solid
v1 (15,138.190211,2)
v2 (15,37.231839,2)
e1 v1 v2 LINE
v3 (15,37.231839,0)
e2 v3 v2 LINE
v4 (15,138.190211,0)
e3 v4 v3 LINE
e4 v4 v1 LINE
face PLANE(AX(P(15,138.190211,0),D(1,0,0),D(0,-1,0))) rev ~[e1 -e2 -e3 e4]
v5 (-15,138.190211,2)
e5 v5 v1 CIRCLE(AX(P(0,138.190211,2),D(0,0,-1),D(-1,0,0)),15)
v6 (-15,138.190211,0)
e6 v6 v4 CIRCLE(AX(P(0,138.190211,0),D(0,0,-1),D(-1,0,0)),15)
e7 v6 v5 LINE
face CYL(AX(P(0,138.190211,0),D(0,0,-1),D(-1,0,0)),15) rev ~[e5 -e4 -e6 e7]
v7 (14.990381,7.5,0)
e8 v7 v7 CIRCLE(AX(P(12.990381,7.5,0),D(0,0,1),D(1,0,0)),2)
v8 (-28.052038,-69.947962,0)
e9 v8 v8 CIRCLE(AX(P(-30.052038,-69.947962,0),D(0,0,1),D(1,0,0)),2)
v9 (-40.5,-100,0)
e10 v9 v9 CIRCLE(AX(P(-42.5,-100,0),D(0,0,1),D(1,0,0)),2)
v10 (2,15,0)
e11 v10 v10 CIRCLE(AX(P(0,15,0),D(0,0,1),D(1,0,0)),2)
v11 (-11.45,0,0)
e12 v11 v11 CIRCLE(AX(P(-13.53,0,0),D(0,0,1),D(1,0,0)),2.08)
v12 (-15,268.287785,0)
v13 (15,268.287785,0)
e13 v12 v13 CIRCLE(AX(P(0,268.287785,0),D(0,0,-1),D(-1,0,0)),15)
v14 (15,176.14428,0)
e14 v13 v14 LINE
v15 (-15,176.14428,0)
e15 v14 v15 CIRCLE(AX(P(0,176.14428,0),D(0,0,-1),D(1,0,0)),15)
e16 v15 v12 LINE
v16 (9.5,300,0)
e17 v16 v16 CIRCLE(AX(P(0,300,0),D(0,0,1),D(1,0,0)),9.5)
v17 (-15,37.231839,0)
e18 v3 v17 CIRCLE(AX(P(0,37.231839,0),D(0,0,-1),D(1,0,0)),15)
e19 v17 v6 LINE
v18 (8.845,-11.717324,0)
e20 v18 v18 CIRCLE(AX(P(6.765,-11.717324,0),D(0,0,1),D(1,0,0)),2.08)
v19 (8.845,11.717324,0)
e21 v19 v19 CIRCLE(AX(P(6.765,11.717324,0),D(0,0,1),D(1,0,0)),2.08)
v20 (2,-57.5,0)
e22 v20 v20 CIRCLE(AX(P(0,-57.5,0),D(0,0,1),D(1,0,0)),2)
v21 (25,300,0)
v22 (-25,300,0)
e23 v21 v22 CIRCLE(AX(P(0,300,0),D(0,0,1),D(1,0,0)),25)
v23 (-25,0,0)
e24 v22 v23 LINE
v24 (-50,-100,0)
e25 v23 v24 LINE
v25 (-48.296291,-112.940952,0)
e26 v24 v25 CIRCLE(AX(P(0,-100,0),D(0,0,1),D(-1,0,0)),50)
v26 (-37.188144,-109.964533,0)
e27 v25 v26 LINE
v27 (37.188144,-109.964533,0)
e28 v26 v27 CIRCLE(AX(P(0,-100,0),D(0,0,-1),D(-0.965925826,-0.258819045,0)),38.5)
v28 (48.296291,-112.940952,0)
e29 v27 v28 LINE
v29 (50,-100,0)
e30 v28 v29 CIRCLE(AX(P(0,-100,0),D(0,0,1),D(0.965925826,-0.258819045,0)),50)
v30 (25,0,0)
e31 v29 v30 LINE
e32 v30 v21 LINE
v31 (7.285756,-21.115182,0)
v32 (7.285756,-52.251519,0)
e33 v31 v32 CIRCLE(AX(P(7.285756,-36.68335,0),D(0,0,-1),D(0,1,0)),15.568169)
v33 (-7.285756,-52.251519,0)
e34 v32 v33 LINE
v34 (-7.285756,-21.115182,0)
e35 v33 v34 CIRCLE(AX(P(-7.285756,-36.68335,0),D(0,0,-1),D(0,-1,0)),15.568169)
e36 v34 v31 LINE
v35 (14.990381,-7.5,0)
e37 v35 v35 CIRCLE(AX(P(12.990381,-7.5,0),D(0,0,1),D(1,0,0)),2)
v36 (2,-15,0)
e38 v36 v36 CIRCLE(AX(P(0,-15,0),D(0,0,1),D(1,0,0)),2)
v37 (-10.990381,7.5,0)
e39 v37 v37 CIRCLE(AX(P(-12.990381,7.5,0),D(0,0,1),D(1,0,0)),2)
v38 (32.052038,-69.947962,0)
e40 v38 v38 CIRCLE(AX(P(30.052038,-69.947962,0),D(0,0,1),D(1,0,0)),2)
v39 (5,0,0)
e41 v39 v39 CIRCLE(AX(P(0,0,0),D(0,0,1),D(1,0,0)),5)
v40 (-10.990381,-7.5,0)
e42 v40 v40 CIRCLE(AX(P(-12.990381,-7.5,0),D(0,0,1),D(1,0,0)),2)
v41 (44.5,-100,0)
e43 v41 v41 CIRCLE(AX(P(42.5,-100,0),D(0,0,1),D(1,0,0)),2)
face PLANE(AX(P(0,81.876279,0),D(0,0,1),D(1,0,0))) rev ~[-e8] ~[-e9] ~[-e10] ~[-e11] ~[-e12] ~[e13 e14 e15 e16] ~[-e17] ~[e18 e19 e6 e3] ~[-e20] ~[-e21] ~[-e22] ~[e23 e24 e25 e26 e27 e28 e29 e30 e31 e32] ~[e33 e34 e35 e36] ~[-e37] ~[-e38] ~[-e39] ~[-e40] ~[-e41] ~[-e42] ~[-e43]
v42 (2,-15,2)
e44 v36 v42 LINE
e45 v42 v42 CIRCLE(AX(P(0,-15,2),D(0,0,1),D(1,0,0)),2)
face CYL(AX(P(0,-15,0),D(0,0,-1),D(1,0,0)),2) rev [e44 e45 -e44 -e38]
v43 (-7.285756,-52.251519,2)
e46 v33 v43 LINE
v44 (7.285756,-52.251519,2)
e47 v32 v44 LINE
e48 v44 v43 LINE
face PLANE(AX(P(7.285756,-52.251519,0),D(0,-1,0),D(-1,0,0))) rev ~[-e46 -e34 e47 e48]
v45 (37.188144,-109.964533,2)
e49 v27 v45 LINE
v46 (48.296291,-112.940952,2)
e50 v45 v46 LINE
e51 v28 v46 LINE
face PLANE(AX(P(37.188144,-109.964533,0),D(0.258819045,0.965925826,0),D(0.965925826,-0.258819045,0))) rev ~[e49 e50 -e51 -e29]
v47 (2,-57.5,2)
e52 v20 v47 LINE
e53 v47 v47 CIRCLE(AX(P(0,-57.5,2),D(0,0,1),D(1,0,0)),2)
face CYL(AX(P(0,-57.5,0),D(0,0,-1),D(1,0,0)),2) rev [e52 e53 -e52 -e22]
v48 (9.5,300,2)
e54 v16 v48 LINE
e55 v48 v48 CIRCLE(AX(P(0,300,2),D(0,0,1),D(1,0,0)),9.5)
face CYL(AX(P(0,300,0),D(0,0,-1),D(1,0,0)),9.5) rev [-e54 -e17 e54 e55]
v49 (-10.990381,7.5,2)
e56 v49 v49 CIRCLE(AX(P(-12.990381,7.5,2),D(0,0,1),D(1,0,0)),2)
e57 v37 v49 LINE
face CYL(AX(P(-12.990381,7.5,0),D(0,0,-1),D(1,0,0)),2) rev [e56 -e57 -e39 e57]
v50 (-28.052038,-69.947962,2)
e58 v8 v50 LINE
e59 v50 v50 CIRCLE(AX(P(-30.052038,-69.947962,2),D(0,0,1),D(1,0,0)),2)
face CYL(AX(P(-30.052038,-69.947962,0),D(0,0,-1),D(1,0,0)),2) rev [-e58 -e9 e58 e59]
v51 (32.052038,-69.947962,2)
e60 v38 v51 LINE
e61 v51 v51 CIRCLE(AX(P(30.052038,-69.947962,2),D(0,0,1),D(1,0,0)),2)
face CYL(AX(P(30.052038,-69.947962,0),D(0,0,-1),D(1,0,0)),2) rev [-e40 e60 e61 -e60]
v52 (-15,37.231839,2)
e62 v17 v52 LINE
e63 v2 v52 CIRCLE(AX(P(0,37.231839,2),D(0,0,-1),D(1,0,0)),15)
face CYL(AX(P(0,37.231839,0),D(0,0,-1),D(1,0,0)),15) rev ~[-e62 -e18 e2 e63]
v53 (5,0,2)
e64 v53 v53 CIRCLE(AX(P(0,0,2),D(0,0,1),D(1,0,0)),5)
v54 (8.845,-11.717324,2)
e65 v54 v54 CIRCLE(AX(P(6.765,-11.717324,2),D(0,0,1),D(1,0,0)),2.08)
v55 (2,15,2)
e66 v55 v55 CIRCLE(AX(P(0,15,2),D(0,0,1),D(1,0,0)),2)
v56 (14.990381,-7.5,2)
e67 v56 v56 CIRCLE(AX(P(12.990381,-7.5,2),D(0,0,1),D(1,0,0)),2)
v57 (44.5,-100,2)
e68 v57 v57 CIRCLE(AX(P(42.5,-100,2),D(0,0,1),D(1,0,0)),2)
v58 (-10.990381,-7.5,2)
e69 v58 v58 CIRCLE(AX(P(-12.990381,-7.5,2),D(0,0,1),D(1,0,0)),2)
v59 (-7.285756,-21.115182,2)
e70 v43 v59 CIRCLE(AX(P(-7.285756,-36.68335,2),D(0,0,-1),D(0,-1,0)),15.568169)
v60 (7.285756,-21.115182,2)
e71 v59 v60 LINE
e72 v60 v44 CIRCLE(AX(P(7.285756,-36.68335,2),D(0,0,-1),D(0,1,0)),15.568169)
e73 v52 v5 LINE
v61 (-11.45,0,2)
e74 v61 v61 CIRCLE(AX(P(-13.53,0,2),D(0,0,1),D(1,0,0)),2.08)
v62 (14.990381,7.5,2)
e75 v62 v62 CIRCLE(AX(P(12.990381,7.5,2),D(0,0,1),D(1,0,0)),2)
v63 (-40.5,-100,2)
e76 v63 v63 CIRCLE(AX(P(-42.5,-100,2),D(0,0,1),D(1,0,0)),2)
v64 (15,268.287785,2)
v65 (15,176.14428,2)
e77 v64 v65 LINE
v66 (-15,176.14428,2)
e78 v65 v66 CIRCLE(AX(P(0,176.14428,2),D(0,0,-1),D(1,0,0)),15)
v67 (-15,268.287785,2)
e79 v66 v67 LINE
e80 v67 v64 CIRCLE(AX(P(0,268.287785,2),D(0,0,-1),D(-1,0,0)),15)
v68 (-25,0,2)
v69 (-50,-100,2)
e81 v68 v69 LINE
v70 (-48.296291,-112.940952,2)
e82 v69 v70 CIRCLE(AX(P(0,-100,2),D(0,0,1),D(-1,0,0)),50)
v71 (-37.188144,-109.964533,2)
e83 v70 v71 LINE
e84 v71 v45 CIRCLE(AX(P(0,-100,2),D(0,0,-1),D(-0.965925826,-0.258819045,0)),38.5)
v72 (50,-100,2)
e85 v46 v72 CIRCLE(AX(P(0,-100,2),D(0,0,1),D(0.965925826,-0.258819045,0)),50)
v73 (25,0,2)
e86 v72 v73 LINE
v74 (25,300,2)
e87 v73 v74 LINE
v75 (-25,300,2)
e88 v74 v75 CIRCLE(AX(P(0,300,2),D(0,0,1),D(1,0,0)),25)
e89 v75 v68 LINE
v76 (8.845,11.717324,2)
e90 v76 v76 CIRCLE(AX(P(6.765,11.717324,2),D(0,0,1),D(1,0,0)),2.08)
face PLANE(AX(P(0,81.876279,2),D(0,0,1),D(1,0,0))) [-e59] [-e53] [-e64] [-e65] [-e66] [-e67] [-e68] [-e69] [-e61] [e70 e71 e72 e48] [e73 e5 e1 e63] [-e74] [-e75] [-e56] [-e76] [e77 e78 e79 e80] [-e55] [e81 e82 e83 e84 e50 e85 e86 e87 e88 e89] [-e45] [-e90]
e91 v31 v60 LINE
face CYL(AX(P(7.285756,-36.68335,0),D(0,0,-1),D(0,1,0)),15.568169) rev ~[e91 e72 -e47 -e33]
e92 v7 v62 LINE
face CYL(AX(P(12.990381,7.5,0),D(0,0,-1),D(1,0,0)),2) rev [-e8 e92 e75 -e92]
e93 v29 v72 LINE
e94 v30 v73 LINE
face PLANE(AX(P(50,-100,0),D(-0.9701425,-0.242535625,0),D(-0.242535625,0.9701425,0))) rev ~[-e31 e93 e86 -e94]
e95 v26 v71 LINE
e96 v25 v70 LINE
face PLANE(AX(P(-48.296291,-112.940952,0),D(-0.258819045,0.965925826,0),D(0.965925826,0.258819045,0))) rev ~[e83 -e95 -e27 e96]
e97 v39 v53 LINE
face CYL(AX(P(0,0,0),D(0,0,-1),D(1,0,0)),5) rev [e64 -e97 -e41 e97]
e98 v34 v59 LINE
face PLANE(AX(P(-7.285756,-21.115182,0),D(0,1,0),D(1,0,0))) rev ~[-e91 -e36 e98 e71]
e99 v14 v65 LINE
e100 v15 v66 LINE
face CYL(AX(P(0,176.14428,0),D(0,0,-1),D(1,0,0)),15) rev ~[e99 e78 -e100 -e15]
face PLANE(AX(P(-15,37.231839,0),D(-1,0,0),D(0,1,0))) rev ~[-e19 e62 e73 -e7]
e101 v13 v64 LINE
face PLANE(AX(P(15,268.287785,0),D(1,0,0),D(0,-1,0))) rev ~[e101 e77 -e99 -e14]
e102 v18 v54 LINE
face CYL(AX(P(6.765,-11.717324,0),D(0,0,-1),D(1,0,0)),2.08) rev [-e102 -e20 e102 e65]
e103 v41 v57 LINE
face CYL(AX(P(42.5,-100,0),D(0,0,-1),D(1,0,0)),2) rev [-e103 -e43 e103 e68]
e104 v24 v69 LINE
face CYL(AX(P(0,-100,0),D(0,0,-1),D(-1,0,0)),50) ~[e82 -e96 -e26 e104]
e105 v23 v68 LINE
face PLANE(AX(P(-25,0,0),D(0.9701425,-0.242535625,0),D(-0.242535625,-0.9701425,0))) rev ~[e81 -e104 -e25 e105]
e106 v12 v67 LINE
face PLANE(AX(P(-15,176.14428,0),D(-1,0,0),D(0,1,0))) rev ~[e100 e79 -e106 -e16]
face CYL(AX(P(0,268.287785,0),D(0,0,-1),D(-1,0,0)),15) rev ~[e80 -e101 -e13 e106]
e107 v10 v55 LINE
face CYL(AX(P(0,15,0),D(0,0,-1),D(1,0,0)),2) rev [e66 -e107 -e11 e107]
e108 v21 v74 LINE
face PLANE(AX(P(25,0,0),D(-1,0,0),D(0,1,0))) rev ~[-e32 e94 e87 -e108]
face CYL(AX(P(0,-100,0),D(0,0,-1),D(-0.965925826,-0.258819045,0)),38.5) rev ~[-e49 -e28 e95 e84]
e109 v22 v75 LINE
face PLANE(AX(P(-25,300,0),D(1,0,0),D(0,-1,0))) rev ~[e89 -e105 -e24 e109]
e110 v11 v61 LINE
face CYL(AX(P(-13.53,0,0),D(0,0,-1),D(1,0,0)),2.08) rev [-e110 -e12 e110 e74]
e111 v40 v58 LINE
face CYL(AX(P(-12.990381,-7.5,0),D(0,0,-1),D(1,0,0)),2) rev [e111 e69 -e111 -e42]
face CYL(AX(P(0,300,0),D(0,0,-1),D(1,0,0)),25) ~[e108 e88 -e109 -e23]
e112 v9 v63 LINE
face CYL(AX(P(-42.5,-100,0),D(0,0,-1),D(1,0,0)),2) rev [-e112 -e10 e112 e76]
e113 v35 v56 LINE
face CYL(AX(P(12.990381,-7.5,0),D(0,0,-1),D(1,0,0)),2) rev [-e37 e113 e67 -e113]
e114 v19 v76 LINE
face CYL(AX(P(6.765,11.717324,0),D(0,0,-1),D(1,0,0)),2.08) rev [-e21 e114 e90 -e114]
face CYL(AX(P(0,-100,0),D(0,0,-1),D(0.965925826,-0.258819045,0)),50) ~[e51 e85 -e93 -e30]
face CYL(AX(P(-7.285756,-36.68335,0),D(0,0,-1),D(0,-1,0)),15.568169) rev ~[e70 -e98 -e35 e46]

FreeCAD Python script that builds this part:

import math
import FreeCAD as App
import Part
import Sketcher
from FreeCAD import Vector
Q = App.Units.Quantity

doc = App.newDocument("Part")
body = doc.addObject("PartDesign::Body", "Body")

# Sketch on XY plane
sketch1 = doc.addObject("Sketcher::SketchObject", "Sketch")
body.addObject(sketch1)
sketch1.AttachmentSupport = (doc.XY_Plane, [""])
sketch1.MapMode = "FlatFace"
sketch1.addGeometry(Part.LineSegment(Vector(37.2, -110, 0), Vector(48.3, -112.9, 0)), False)
sketch1.addGeometry(Part.ArcOfCircle(Part.Circle(Vector(0, -100, 0), Vector(0, 0, 1), 50), math.radians(-15), math.radians(0)), False)
sketch1.addGeometry(Part.LineSegment(Vector(50, -100, 0), Vector(25, 0, 0)), False)
sketch1.addGeometry(Part.LineSegment(Vector(25, 0, 0), Vector(25, 300, 0)), False)
sketch1.addGeometry(Part.ArcOfCircle(Part.Circle(Vector(0, 300, 0), Vector(0, 0, 1), 25), math.radians(0), math.radians(180)), False)
sketch1.addGeometry(Part.LineSegment(Vector(-25, 300, 0), Vector(-25, 0, 0)), False)
sketch1.addGeometry(Part.LineSegment(Vector(-25, 0, 0), Vector(-50, -100, 0)), False)
sketch1.addGeometry(Part.ArcOfCircle(Part.Circle(Vector(0, -100, 0), Vector(0, 0, 1), 50), math.radians(180), math.radians(195)), False)
sketch1.addGeometry(Part.LineSegment(Vector(-48.3, -112.9, 0), Vector(-37.2, -110, 0)), False)
sketch1.addGeometry(Part.ArcOfCircle(Part.Circle(Vector(0, -100, 0), Vector(0, 0, 1), 38.5), math.radians(-15), math.radians(195)), False)
sketch1.addGeometry(Part.Circle(Vector(-42.5, -100, 0), Vector(0, 0, 1), 2), False)
sketch1.addGeometry(Part.Circle(Vector(-30.1, -69.9, 0), Vector(0, 0, 1), 2), False)
sketch1.addGeometry(Part.Circle(Vector(-13, -7.5, 0), Vector(0, 0, 1), 2), False)
sketch1.addGeometry(Part.Circle(Vector(-13.5, 0, 0), Vector(0, 0, 1), 2.1), False)
sketch1.addGeometry(Part.Circle(Vector(-13, 7.5, 0), Vector(0, 0, 1), 2), False)
sketch1.addGeometry(Part.Circle(Vector(0, -57.5, 0), Vector(0, 0, 1), 2), False)
sketch1.addGeometry(Part.ArcOfCircle(Part.Circle(Vector(-7.3, -36.7, 0), Vector(0, 0, 1), 15.6), math.radians(90), math.radians(270)), False)
sketch1.addGeometry(Part.LineSegment(Vector(-7.3, -21.1, 0), Vector(7.3, -21.1, 0)), False)
sketch1.addGeometry(Part.ArcOfCircle(Part.Circle(Vector(7.3, -36.7, 0), Vector(0, 0, 1), 15.6), math.radians(-90), math.radians(90)), False)
sketch1.addGeometry(Part.LineSegment(Vector(7.3, -52.3, 0), Vector(-7.3, -52.3, 0)), False)
sketch1.addGeometry(Part.Circle(Vector(0, -15, 0), Vector(0, 0, 1), 2), False)
sketch1.addGeometry(Part.Circle(Vector(0, 0, 0), Vector(0, 0, 1), 5), False)
sketch1.addGeometry(Part.Circle(Vector(6.8, -11.7, 0), Vector(0, 0, 1), 2.1), False)
sketch1.addGeometry(Part.Circle(Vector(13, -7.5, 0), Vector(0, 0, 1), 2), False)
sketch1.addGeometry(Part.Circle(Vector(30.1, -69.9, 0), Vector(0, 0, 1), 2), False)
sketch1.addGeometry(Part.Circle(Vector(42.5, -100, 0), Vector(0, 0, 1), 2), False)
sketch1.addGeometry(Part.Circle(Vector(0, 15, 0), Vector(0, 0, 1), 2), False)
sketch1.addGeometry(Part.Circle(Vector(6.8, 11.7, 0), Vector(0, 0, 1), 2.1), False)
sketch1.addGeometry(Part.Circle(Vector(13, 7.5, 0), Vector(0, 0, 1), 2), False)
sketch1.addGeometry(Part.ArcOfCircle(Part.Circle(Vector(0, 37.2, 0), Vector(0, 0, 1), 15), math.radians(180), math.radians(360)), False)
sketch1.addGeometry(Part.LineSegment(Vector(-15, 37.2, 0), Vector(-15, 138.2, 0)), False)
sketch1.addGeometry(Part.ArcOfCircle(Part.Circle(Vector(0, 138.2, 0), Vector(0, 0, 1), 15), math.radians(0), math.radians(180)), False)
sketch1.addGeometry(Part.LineSegment(Vector(15, 138.2, 0), Vector(15, 37.2, 0)), False)
sketch1.addGeometry(Part.ArcOfCircle(Part.Circle(Vector(0, 176.1, 0), Vector(0, 0, 1), 15), math.radians(180), math.radians(360)), False)
sketch1.addGeometry(Part.LineSegment(Vector(-15, 176.1, 0), Vector(-15, 268.3, 0)), False)
sketch1.addGeometry(Part.ArcOfCircle(Part.Circle(Vector(0, 268.3, 0), Vector(0, 0, 1), 15), math.radians(0), math.radians(180)), False)
sketch1.addGeometry(Part.LineSegment(Vector(15, 268.3, 0), Vector(15, 176.1, 0)), False)
sketch1.addGeometry(Part.Circle(Vector(0, 300, 0), Vector(0, 0, 1), 9.5), False)
sketch1.addConstraint(Sketcher.Constraint("Coincident", 0, 2, 1, 1))
sketch1.addConstraint(Sketcher.Constraint("Coincident", 1, 2, 2, 1))
sketch1.addConstraint(Sketcher.Constraint("Coincident", 2, 2, 3, 1))
sketch1.addConstraint(Sketcher.Constraint("Tangent", 3, 2, 4, 1))
sketch1.addConstraint(Sketcher.Constraint("Tangent", 4, 2, 5, 1))
sketch1.addConstraint(Sketcher.Constraint("Coincident", 5, 2, 6, 1))
sketch1.addConstraint(Sketcher.Constraint("Coincident", 6, 2, 7, 1))
sketch1.addConstraint(Sketcher.Constraint("Coincident", 7, 2, 8, 1))
sketch1.addConstraint(Sketcher.Constraint("Coincident", 8, 2, 9, 2))
sketch1.addConstraint(Sketcher.Constraint("Coincident", 9, 1, 0, 1))
sketch1.addConstraint(Sketcher.Constraint("Tangent", 16, 1, 17, 1))
sketch1.addConstraint(Sketcher.Constraint("Tangent", 17, 2, 18, 2))
sketch1.addConstraint(Sketcher.Constraint("Tangent", 18, 1, 19, 1))
sketch1.addConstraint(Sketcher.Constraint("Tangent", 19, 2, 16, 2))
sketch1.addConstraint(Sketcher.Constraint("Tangent", 29, 1, 30, 1))
sketch1.addConstraint(Sketcher.Constraint("Tangent", 30, 2, 31, 2))
sketch1.addConstraint(Sketcher.Constraint("Tangent", 31, 1, 32, 1))
sketch1.addConstraint(Sketcher.Constraint("Tangent", 32, 2, 29, 2))
sketch1.addConstraint(Sketcher.Constraint("Tangent", 33, 1, 34, 1))
sketch1.addConstraint(Sketcher.Constraint("Tangent", 34, 2, 35, 2))
sketch1.addConstraint(Sketcher.Constraint("Tangent", 35, 1, 36, 1))
sketch1.addConstraint(Sketcher.Constraint("Tangent", 36, 2, 33, 2))
sketch1.addConstraint(Sketcher.Constraint("Vertical", 3))
sketch1.addConstraint(Sketcher.Constraint("Vertical", 5))
sketch1.addConstraint(Sketcher.Constraint("Horizontal", 17))
sketch1.addConstraint(Sketcher.Constraint("Horizontal", 19))
sketch1.addConstraint(Sketcher.Constraint("Vertical", 30))
sketch1.addConstraint(Sketcher.Constraint("Vertical", 32))
sketch1.addConstraint(Sketcher.Constraint("Vertical", 34))
sketch1.addConstraint(Sketcher.Constraint("Vertical", 36))
sketch1.addConstraint(Sketcher.Constraint("Coincident", 21, 3, -1, 1))
sketch1.addConstraint(Sketcher.Constraint("Coincident", 7, 3, 1, 3))
sketch1.addConstraint(Sketcher.Constraint("Coincident", 9, 3, 1, 3))
sketch1.addConstraint(Sketcher.Constraint("Coincident", 37, 3, 4, 3))
sketch1.addConstraint(Sketcher.Constraint("Equal", 1, 7))
sketch1.addConstraint(Sketcher.Constraint("Equal", 10, 11))
sketch1.addConstraint(Sketcher.Constraint("Equal", 11, 12))
sketch1.addConstraint(Sketcher.Constraint("Equal", 12, 14))
sketch1.addConstraint(Sketcher.Constraint("Equal", 14, 15))
sketch1.addConstraint(Sketcher.Constraint("Equal", 15, 20))
sketch1.addConstraint(Sketcher.Constraint("Equal", 13, 22))
sketch1.addConstraint(Sketcher.Constraint("Equal", 20, 23))
sketch1.addConstraint(Sketcher.Constraint("Equal", 23, 24))
sketch1.addConstraint(Sketcher.Constraint("Equal", 24, 25))
sketch1.addConstraint(Sketcher.Constraint("Equal", 25, 26))
sketch1.addConstraint(Sketcher.Constraint("Equal", 22, 27))
sketch1.addConstraint(Sketcher.Constraint("Equal", 26, 28))
sketch1.addConstraint(Sketcher.Constraint("Equal", 31, 33))
sketch1.addConstraint(Sketcher.Constraint("Symmetric", 14, 3, 23, 3, -1, 1))
sketch1.addConstraint(Sketcher.Constraint("Symmetric", 20, 3, 26, 3, -1, 1))
sketch1.addConstraint(Sketcher.Constraint("Symmetric", 12, 3, 28, 3, -1, 1))
sketch1.addConstraint(Sketcher.Constraint("Symmetric", 2, 2, 5, 2, -1, 1))
sketch1.addConstraint(Sketcher.Constraint("Symmetric", 12, 3, 23, 3, -2))
sketch1.addConstraint(Sketcher.Constraint("Symmetric", 11, 3, 24, 3, -2))
sketch1.addConstraint(Sketcher.Constraint("Symmetric", 10, 3, 25, 3, -2))
sketch1.addConstraint(Sketcher.Constraint("Symmetric", 1, 2, 6, 2, -2))
sketch1.addConstraint(Sketcher.Constraint("Symmetric", 22, 3, 27, 3, -1))
sketch1.addConstraint(Sketcher.Constraint("PointOnObject", 13, 3, -1))
sketch1.addConstraint(Sketcher.Constraint("PointOnObject", 15, 3, -2))
sketch1.addConstraint(Sketcher.Constraint("PointOnObject", 20, 3, -2))
sketch1.addConstraint(Sketcher.Constraint("PointOnObject", 29, 3, -2))
sketch1.addConstraint(Sketcher.Constraint("PointOnObject", 33, 3, -2))
sketch1.addConstraint(Sketcher.Constraint("PointOnObject", 2, 2, -1))
sketch1.addConstraint(Sketcher.Constraint("Horizontal", 9, 3, 10, 3))
sketch1.addConstraint(Sketcher.Constraint("Horizontal", 25, 3, 1, 2))
sketch1.addConstraint(Sketcher.Constraint("Horizontal", 0, 2, 7, 2))
sketch1.addConstraint(Sketcher.Constraint("Horizontal", 8, 2, 9, 1))
sketch1.addConstraint(Sketcher.Constraint("Diameter", 10, 4.0))
sketch1.addConstraint(Sketcher.Constraint("Diameter", 21, 10.0))
sketch1.addConstraint(Sketcher.Constraint("Diameter", 37, 19.0))
sketch1.addConstraint(Sketcher.Constraint("Radius", 1, 50.0))
sketch1.addConstraint(Sketcher.Constraint("Radius", 4, 25.0))
sketch1.addConstraint(Sketcher.Constraint("Radius", 29, 15.0))
sketch1.addConstraint(Sketcher.Constraint("Radius", 9, 38.5))
sketch1.addConstraint(Sketcher.Constraint("Diameter", 13, 4.16))
sketch1.addConstraint(Sketcher.Constraint("DistanceY", 3, 1, 3, 2, 300.0))
sketch1.addConstraint(Sketcher.Constraint("Angle", 0, Q("-15 deg")))
sketch1.addConstraint(Sketcher.Constraint("DistanceY", 1, 3, -1, 1, 100.0))
sketch1.addConstraint(Sketcher.Constraint("DistanceY", 20, 3, -1, 1, 15.0))
sketch1.addConstraint(Sketcher.Constraint("DistanceY", 12, 3, 14, 3, 15.0))
sketch1.addConstraint(Sketcher.Constraint("DistanceY", 15, 3, 12, 3, 50.0))
sketch1.addConstraint(Sketcher.Constraint("DistanceX", 10, 3, -1, 1, 42.5))
sketch1.addConstraint(Sketcher.Constraint("DistanceX", 13, 3, -1, 1, 13.53))
sketch1.addConstraint(Sketcher.Constraint("Radius", 16, 15.568169))
sketch1.addConstraint(Sketcher.Constraint("DistanceX", -1, 1, 22, 3, 6.765))
sketch1.addConstraint(Sketcher.Constraint("DistanceY", 30, 1, 30, 2, 100.958372))
sketch1.addConstraint(Sketcher.Constraint("DistanceX", 17, 1, 17, 2, 14.571513))
sketch1.addConstraint(Sketcher.Constraint("DistanceY", 34, 1, 34, 2, 92.143505))
sketch1.addConstraint(Sketcher.Constraint("DistanceX", 11, 3, -1, 1, 30.052038))
sketch1.addConstraint(Sketcher.Constraint("DistanceY", 11, 3, -1, 1, 69.947962))
sketch1.addConstraint(Sketcher.Constraint("DistanceX", 12, 3, -1, 1, 12.990381))
sketch1.addConstraint(Sketcher.Constraint("DistanceY", 16, 3, -1, 1, 36.68335))
sketch1.addConstraint(Sketcher.Constraint("DistanceY", -1, 1, 29, 3, 37.231839))
sketch1.addConstraint(Sketcher.Constraint("DistanceY", -1, 1, 33, 3, 176.14428))
sketch1.addConstraint(Sketcher.Constraint("DistanceX", -1, 1, 0, 2, 48.296291))
sketch1.addConstraint(Sketcher.Constraint("DistanceX", 11, 3, 16, 3, 22.766282))
sketch1.addConstraint(Sketcher.Constraint("DistanceY", 22, 3, -1, 1, 11.717324))
pad1 = doc.addObject("PartDesign::Pad", "Pad")
body.addObject(pad1)
pad1.Profile = sketch1
pad1.Length = 2

doc.recompute()
